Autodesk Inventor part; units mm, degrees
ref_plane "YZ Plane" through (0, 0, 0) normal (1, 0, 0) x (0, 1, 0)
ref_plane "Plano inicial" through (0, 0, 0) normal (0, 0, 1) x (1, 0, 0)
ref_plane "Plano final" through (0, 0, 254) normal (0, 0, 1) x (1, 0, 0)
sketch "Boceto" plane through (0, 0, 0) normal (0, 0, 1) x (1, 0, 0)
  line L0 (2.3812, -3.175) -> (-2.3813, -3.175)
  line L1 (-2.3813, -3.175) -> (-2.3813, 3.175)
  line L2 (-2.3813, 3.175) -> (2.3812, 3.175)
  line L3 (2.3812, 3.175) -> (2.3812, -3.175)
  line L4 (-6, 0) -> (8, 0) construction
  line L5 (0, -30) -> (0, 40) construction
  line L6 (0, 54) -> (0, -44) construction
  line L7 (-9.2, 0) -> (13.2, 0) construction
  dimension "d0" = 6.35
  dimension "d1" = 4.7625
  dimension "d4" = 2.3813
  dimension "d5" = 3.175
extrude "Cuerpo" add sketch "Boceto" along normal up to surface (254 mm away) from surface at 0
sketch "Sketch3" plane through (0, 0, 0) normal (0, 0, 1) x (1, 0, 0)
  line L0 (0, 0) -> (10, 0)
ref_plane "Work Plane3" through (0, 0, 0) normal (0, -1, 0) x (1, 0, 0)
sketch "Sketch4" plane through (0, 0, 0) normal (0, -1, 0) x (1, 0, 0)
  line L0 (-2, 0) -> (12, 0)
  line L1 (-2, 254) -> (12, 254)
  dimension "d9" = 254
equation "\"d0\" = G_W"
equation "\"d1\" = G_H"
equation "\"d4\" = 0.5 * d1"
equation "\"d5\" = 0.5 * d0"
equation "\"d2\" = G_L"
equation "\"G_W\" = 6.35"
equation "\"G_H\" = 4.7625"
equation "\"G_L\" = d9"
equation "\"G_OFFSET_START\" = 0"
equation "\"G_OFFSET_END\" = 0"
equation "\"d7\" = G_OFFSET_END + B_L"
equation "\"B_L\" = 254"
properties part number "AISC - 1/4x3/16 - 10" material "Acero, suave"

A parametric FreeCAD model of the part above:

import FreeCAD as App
import Part
import Sketcher

V = App.Vector
Q = App.Units.Quantity


def add_polygon(sketch, points):
    """Adds a closed chain of lines whose ends are joined by coincident constraints."""
    first, n = sketch.GeometryCount, len(points)
    for a, b in zip(points, points[1:] + points[:1]):
        sketch.addGeometry(Part.LineSegment(App.Vector(*a, 0), App.Vector(*b, 0)), False)
    for i in range(n):
        sketch.addConstraint(Sketcher.Constraint("Coincident", first + i, 2, first + (i + 1) % n, 1))

doc = App.newDocument("Part")
body = doc.addObject("PartDesign::Body", "Body")

sketch1 = body.newObject("Sketcher::SketchObject", "Sketch")
sketch1.AttachmentSupport = (doc.getObject("XY_Plane"), [""])
sketch1.MapMode = "FlatFace"
add_polygon(sketch1, [(-2.4, -3.2), (2.4, -3.2), (2.4, 3.2), (-2.4, 3.2)])
sketch1.addConstraint([
    Sketcher.Constraint("Horizontal", 0),
    Sketcher.Constraint("Vertical", 1),
    Sketcher.Constraint("Horizontal", 2),
    Sketcher.Constraint("Vertical", 3),
    Sketcher.Constraint("Symmetric", 0, 2, 2, 2, -1, 1),
    Sketcher.Constraint("DistanceY", 1, 1, 1, 2, Q("0.25 in")),
    Sketcher.Constraint("DistanceX", 0, 1, 0, 2, Q("0.1875 in")),
])
pad1 = body.newObject("PartDesign::Pad", "Pad")
pad1.Profile = sketch1
pad1.Length = Q("10 in")

doc.recompute()
